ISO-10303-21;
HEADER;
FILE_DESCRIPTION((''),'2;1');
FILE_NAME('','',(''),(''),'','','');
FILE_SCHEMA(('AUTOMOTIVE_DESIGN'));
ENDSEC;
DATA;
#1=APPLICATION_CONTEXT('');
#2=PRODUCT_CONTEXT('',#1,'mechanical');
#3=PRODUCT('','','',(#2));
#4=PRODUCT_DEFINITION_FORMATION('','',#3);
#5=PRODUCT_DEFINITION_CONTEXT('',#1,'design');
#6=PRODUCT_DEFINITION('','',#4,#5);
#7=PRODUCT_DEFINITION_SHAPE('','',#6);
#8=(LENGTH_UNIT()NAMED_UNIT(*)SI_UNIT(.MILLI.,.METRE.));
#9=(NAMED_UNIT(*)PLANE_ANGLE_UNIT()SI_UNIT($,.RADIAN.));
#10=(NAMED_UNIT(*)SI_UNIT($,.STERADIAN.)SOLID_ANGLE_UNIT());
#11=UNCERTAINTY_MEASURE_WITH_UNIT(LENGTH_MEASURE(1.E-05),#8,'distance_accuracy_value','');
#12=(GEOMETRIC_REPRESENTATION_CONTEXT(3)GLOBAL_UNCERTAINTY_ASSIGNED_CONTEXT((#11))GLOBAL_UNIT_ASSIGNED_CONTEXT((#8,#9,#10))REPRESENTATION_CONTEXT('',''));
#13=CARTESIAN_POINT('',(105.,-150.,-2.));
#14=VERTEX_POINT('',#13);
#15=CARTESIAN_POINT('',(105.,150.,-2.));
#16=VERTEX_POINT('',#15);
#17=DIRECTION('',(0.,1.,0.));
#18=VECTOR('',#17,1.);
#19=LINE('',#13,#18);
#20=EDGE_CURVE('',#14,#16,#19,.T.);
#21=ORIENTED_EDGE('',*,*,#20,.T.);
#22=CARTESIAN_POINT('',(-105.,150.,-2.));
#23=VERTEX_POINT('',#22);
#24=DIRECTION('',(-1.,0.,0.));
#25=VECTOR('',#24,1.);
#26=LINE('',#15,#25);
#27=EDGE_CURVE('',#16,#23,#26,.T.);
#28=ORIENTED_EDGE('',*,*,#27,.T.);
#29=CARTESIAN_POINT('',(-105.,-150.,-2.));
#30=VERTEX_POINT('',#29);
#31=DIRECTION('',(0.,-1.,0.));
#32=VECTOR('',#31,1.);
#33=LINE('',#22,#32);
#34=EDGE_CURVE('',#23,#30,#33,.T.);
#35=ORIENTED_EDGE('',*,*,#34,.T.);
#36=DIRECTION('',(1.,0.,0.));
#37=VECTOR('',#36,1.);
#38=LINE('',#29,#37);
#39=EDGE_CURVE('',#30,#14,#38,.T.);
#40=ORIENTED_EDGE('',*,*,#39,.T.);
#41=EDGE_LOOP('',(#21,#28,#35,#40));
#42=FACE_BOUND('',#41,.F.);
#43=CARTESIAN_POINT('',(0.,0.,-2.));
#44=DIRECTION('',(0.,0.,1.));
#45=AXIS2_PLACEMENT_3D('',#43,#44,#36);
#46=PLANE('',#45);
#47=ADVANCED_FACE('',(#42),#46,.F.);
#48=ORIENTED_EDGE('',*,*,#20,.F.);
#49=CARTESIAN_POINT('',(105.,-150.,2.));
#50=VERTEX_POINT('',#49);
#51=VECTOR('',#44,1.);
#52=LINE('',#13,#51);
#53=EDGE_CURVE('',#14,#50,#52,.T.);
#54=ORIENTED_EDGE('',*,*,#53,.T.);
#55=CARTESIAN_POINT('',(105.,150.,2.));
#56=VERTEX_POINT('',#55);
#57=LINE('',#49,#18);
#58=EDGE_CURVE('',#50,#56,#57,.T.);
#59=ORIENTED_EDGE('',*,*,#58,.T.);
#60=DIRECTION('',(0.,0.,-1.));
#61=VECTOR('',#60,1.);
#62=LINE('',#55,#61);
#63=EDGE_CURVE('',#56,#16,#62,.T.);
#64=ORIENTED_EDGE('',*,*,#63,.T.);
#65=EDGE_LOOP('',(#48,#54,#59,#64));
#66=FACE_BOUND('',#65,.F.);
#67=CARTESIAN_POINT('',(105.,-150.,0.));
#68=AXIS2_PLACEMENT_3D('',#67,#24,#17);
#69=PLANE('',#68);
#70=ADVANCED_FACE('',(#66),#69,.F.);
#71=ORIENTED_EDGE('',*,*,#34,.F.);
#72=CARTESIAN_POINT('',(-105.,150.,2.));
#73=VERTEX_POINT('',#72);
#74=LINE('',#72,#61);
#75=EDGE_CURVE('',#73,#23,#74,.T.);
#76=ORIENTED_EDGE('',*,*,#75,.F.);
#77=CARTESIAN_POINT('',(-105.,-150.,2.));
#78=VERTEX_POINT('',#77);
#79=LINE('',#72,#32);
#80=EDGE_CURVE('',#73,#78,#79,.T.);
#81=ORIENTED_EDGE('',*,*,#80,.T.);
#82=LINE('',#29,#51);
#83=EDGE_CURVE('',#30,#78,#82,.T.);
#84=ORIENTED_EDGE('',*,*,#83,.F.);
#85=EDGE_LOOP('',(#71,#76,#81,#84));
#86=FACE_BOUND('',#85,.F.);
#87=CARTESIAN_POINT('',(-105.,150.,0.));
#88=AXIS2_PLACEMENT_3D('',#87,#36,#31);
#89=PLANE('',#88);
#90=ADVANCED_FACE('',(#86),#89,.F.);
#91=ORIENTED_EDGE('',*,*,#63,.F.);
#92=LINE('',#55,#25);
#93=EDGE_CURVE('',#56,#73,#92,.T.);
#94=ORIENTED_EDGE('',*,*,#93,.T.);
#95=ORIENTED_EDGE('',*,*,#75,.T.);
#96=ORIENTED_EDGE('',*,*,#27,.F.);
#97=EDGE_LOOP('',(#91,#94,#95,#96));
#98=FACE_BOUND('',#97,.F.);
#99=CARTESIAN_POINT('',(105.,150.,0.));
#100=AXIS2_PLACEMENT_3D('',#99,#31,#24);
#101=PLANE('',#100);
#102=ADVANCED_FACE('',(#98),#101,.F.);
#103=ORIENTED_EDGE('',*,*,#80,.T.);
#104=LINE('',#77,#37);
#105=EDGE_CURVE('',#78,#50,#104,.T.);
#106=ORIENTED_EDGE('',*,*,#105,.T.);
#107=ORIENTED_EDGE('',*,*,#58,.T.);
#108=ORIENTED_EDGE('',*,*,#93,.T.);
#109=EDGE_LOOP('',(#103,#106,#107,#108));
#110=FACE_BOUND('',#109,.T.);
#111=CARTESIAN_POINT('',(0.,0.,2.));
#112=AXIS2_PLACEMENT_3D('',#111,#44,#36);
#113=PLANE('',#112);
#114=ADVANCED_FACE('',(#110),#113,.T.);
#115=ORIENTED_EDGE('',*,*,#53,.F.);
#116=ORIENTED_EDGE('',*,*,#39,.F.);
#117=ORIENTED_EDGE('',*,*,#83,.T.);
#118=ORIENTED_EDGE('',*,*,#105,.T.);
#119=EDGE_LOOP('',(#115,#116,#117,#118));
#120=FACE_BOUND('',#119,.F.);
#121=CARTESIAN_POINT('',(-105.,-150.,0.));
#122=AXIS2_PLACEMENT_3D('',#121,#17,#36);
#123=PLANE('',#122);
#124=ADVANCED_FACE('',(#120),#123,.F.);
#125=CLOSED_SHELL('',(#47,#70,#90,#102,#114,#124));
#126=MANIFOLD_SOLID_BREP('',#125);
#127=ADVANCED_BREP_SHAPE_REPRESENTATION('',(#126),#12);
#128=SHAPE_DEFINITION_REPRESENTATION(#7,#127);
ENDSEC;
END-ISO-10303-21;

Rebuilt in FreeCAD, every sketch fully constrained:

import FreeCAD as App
import Part
import Sketcher
Q = App.Units.Quantity

doc = App.newDocument("Part")
body = doc.addObject("PartDesign::Body", "Body")

# Sketch on XY plane
sketch1 = doc.addObject("Sketcher::SketchObject", "Sketch")
body.addObject(sketch1)
sketch1.AttachmentSupport = (doc.XY_Plane, [""])
sketch1.MapMode = "FlatFace"
sketch1.addGeometry(Part.LineSegment(App.Vector(-105, 150, 0), App.Vector(-105, -150, 0)), False)
sketch1.addGeometry(Part.LineSegment(App.Vector(-105, -150, 0), App.Vector(105, -150, 0)), False)
sketch1.addGeometry(Part.LineSegment(App.Vector(105, -150, 0), App.Vector(105, 150, 0)), False)
sketch1.addGeometry(Part.LineSegment(App.Vector(105, 150, 0), App.Vector(-105, 150, 0)), False)
sketch1.addConstraint(Sketcher.Constraint("Coincident", 0, 2, 1, 1))
sketch1.addConstraint(Sketcher.Constraint("Coincident", 1, 2, 2, 1))
sketch1.addConstraint(Sketcher.Constraint("Coincident", 2, 2, 3, 1))
sketch1.addConstraint(Sketcher.Constraint("Coincident", 3, 2, 0, 1))
sketch1.addConstraint(Sketcher.Constraint("Vertical", 0))
sketch1.addConstraint(Sketcher.Constraint("Horizontal", 1))
sketch1.addConstraint(Sketcher.Constraint("Vertical", 2))
sketch1.addConstraint(Sketcher.Constraint("Horizontal", 3))
sketch1.addConstraint(Sketcher.Constraint("Symmetric", 0, 2, 2, 2, -1, 1))
sketch1.addConstraint(Sketcher.Constraint("DistanceX", 1, 1, 1, 2, Q("210 mm")))
sketch1.addConstraint(Sketcher.Constraint("DistanceY", 0, 2, 0, 1, Q("300 mm")))
pad1 = doc.addObject("PartDesign::Pad", "Pad")
body.addObject(pad1)
pad1.Profile = sketch1
pad1.Length = 4
pad1.Midplane = True

doc.recompute()
